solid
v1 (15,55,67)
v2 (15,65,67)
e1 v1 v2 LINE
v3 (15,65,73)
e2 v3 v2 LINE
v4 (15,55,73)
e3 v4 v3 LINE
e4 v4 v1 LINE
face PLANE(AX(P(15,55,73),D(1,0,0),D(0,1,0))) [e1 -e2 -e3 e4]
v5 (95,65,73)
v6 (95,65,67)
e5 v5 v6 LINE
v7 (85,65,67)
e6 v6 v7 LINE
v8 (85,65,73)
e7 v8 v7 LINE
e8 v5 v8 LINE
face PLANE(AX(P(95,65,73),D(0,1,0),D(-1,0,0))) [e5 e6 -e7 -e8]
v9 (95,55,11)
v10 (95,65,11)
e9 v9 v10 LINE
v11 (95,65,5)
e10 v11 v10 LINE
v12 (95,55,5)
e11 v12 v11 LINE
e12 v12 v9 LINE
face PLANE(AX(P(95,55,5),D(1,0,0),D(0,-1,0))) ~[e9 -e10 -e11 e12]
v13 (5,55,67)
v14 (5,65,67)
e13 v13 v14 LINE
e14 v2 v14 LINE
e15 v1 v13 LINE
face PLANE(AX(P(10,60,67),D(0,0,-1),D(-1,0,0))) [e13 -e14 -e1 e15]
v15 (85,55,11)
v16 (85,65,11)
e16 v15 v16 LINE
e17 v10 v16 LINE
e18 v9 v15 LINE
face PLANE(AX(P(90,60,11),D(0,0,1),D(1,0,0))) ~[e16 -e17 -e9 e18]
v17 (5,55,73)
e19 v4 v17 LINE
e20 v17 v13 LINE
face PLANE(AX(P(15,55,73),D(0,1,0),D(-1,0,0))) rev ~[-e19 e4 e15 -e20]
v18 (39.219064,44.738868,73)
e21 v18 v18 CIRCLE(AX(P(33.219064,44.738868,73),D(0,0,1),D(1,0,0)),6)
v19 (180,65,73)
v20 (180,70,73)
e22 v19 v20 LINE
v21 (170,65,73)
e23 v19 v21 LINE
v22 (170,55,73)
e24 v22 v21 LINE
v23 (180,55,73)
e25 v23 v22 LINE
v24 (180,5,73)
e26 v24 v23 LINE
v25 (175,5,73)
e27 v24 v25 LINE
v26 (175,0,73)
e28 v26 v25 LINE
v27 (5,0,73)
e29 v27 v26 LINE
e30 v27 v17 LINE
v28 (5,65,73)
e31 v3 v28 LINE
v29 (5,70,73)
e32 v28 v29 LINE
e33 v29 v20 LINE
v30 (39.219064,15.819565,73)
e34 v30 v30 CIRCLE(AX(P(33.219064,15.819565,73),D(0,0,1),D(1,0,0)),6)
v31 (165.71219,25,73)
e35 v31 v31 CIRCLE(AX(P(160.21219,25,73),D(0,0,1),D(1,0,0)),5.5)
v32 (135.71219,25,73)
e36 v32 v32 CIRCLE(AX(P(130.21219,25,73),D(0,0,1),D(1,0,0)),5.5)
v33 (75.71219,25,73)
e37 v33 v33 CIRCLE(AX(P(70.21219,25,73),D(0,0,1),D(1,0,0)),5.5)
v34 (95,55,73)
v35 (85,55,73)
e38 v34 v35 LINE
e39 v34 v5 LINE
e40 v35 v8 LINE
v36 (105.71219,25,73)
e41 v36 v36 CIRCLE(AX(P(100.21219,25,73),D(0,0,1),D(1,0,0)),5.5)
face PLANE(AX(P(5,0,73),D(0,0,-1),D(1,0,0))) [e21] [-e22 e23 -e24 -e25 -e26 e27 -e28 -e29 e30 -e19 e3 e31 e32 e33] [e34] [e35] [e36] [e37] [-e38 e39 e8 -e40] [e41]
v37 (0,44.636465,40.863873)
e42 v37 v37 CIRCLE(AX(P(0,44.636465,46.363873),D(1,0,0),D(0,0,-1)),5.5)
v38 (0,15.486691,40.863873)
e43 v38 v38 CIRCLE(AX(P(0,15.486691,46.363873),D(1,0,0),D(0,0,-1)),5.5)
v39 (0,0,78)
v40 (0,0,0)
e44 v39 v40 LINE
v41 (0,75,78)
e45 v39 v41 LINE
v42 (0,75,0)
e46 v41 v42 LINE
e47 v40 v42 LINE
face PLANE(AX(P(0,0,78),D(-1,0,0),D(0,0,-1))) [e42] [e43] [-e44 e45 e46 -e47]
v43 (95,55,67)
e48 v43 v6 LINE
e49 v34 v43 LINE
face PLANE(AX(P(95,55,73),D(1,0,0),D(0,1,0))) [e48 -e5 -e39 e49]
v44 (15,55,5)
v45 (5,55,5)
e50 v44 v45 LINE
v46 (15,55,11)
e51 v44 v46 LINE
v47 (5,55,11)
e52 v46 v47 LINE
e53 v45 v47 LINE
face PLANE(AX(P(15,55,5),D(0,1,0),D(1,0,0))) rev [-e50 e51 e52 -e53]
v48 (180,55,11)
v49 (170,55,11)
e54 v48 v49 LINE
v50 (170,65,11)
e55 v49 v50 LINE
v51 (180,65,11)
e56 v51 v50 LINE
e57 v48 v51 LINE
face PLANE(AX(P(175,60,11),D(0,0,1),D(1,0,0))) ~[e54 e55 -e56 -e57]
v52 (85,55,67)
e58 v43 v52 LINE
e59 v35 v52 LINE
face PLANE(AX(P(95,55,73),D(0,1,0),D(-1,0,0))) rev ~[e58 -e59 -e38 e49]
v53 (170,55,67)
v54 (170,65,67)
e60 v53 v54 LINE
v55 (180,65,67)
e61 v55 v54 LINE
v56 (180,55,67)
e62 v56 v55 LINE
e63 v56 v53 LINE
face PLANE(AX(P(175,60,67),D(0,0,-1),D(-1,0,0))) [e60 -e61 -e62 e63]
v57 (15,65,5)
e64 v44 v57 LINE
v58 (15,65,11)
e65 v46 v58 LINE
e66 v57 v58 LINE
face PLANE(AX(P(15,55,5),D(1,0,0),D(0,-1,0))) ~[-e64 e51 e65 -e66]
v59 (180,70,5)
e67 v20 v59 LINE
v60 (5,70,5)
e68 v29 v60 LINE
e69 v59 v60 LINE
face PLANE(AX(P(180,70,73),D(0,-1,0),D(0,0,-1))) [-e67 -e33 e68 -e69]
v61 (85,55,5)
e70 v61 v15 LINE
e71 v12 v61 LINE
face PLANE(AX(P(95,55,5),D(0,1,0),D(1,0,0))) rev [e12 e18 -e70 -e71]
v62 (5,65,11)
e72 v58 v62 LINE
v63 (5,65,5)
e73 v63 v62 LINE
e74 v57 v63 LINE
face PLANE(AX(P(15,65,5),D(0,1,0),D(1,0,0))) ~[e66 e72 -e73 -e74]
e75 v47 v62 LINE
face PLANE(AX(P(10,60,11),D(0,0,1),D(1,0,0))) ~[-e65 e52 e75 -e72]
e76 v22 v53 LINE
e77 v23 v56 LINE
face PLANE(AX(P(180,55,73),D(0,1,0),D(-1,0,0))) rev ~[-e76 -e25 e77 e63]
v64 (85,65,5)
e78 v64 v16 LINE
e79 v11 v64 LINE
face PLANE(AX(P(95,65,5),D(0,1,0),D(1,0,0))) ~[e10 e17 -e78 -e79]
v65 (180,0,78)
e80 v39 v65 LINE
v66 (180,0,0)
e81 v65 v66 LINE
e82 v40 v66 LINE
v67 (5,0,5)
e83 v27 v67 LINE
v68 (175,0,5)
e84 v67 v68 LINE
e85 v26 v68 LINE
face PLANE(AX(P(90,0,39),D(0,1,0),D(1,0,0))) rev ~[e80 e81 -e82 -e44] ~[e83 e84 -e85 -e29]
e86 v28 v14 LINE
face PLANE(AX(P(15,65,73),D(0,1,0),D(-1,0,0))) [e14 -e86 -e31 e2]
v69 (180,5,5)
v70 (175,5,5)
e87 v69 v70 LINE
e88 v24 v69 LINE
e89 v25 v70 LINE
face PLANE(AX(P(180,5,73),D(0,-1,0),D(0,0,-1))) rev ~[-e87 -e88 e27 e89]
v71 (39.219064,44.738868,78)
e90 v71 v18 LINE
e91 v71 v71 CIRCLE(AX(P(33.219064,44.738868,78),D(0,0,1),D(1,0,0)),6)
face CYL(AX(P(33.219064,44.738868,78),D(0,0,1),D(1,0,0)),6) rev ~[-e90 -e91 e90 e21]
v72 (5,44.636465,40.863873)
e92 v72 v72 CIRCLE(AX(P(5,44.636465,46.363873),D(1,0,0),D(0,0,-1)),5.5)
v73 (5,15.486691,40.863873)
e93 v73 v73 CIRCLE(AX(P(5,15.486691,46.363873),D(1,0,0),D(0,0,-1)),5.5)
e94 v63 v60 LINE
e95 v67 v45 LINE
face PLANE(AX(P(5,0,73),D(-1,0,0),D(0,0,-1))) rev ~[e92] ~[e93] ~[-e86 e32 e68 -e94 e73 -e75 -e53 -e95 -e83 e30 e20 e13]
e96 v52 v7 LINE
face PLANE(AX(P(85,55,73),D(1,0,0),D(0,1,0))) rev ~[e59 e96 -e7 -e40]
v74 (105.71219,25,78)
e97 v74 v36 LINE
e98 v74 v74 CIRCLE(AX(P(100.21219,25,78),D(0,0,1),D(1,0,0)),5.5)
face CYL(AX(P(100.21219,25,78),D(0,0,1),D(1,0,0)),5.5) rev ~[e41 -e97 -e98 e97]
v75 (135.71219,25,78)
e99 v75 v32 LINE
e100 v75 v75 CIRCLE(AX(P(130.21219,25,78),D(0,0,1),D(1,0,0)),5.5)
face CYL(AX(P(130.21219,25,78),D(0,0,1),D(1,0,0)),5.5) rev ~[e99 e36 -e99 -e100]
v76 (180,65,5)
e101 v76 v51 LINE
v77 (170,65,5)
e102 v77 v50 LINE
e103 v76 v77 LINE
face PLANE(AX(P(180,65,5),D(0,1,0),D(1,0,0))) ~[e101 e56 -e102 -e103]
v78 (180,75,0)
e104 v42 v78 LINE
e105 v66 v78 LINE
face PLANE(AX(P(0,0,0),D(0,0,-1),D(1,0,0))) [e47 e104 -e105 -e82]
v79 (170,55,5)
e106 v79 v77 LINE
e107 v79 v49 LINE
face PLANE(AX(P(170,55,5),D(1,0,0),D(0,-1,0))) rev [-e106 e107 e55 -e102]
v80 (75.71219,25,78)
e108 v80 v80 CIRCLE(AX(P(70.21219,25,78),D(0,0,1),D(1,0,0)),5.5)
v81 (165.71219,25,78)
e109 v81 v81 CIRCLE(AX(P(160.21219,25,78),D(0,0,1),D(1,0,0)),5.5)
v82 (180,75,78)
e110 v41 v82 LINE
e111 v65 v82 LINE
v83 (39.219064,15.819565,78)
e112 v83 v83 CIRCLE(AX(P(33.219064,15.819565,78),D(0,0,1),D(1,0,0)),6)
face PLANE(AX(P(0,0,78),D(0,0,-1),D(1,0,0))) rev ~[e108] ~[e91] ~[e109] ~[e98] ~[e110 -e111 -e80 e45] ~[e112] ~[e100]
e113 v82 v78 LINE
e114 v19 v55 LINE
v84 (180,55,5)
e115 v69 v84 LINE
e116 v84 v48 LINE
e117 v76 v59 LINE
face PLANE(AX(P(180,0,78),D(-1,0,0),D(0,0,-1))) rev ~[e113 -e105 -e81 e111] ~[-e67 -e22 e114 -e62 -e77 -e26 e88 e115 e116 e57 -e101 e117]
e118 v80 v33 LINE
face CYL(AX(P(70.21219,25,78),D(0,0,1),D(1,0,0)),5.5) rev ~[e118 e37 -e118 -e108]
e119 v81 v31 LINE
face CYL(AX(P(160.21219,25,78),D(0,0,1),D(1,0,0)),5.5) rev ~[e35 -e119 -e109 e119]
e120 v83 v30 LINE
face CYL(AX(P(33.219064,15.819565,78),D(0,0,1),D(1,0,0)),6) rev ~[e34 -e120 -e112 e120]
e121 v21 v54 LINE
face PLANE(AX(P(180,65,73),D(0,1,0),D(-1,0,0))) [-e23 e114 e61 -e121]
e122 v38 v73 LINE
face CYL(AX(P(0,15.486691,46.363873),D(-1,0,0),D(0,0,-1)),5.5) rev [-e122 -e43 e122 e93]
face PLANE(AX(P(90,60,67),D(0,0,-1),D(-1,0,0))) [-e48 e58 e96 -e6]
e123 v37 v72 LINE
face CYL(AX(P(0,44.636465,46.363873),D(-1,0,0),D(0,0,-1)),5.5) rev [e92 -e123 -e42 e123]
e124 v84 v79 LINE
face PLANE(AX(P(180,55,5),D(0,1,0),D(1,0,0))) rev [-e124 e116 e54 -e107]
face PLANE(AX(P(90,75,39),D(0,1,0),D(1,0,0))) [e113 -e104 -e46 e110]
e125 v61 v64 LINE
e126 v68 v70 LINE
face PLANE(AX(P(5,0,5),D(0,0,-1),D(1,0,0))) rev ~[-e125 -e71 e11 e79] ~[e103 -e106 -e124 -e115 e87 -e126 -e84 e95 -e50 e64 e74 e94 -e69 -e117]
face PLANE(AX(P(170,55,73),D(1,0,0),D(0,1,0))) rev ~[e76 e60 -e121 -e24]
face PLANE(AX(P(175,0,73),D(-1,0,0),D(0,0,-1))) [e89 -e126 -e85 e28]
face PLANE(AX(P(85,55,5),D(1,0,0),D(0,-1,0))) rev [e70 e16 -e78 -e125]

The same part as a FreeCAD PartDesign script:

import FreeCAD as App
import Part
import Sketcher

doc = App.newDocument("Part")
body = doc.addObject("PartDesign::Body", "Body")

# Sketch on XZ plane
sketch1 = body.newObject("Sketcher::SketchObject", "Sketch")
sketch1.AttachmentSupport = (doc.getObject("XZ_Plane"), [""])
sketch1.MapMode = "FlatFace"
sketch1.addGeometry(Part.LineSegment(App.Vector(0, 0, 0), App.Vector(0, 78, 0)), False)
sketch1.addGeometry(Part.LineSegment(App.Vector(0, 78, 0), App.Vector(180, 78, 0)), False)
sketch1.addGeometry(Part.LineSegment(App.Vector(180, 78, 0), App.Vector(180, 0, 0)), False)
sketch1.addGeometry(Part.LineSegment(App.Vector(180, 0, 0), App.Vector(0, 0, 0)), False)
sketch1.addConstraint(Sketcher.Constraint("Coincident", 0, 2, 1, 1))
sketch1.addConstraint(Sketcher.Constraint("Coincident", 1, 2, 2, 1))
sketch1.addConstraint(Sketcher.Constraint("Coincident", 2, 2, 3, 1))
sketch1.addConstraint(Sketcher.Constraint("Coincident", 3, 2, 0, 1))
sketch1.addConstraint(Sketcher.Constraint("Vertical", 0))
sketch1.addConstraint(Sketcher.Constraint("Horizontal", 1))
sketch1.addConstraint(Sketcher.Constraint("Vertical", 2))
sketch1.addConstraint(Sketcher.Constraint("Horizontal", 3))
sketch1.addConstraint(Sketcher.Constraint("Coincident", 3, 2, -1, 1))
sketch1.addConstraint(Sketcher.Constraint("DistanceX", 1, 1, 1, 2, 180.0))
sketch1.addConstraint(Sketcher.Constraint("DistanceY", 0, 1, 0, 2, 78.0))
pad1 = body.newObject("PartDesign::Pad", "Pad")
pad1.Profile = sketch1
pad1.Length = 75
pad1.Reversed = True

# Sketch on XZ plane
sketch2 = body.newObject("Sketcher::SketchObject", "Sketch001")
sketch2.AttachmentSupport = (doc.getObject("XZ_Plane"), [""])
sketch2.MapMode = "FlatFace"
sketch2.addGeometry(Part.LineSegment(App.Vector(5, 5, 0), App.Vector(5, 73, 0)), False)
sketch2.addGeometry(Part.LineSegment(App.Vector(5, 73, 0), App.Vector(175, 73, 0)), False)
sketch2.addGeometry(Part.LineSegment(App.Vector(175, 73, 0), App.Vector(175, 5, 0)), False)
sketch2.addGeometry(Part.LineSegment(App.Vector(175, 5, 0), App.Vector(5, 5, 0)), False)
sketch2.addConstraint(Sketcher.Constraint("Coincident", 0, 2, 1, 1))
sketch2.addConstraint(Sketcher.Constraint("Coincident", 1, 2, 2, 1))
sketch2.addConstraint(Sketcher.Constraint("Coincident", 2, 2, 3, 1))
sketch2.addConstraint(Sketcher.Constraint("Coincident", 3, 2, 0, 1))
sketch2.addConstraint(Sketcher.Constraint("Vertical", 0))
sketch2.addConstraint(Sketcher.Constraint("Horizontal", 1))
sketch2.addConstraint(Sketcher.Constraint("Vertical", 2))
sketch2.addConstraint(Sketcher.Constraint("Horizontal", 3))
sketch2.addConstraint(Sketcher.Constraint("DistanceX", 1, 1, 1, 2, 170.0))
sketch2.addConstraint(Sketcher.Constraint("DistanceY", 0, 1, 0, 2, 68.0))
sketch2.addConstraint(Sketcher.Constraint("DistanceX", -1, 1, 0, 2, 5.0))
sketch2.addConstraint(Sketcher.Constraint("DistanceY", -1, 1, 0, 2, 73.0))
pocket1 = body.newObject("PartDesign::Pocket", "Pocket")
pocket1.Profile = sketch2
pocket1.Length = 70

# Sketch on YZ plane
sketch3 = body.newObject("Sketcher::SketchObject", "Sketch002")
sketch3.AttachmentSupport = (doc.getObject("YZ_Plane"), [""])
sketch3.MapMode = "FlatFace"
sketch3.AttachmentOffset = App.Placement(App.Vector(0, 0, 180), App.Rotation())
sketch3.addGeometry(Part.LineSegment(App.Vector(70, 73, 0), App.Vector(5, 73, 0)), False)
sketch3.addGeometry(Part.LineSegment(App.Vector(5, 73, 0), App.Vector(5, 5, 0)), False)
sketch3.addGeometry(Part.LineSegment(App.Vector(5, 5, 0), App.Vector(70, 5, 0)), False)
sketch3.addGeometry(Part.LineSegment(App.Vector(70, 5, 0), App.Vector(70, 73, 0)), False)
sketch3.addConstraint(Sketcher.Constraint("Coincident", 0, 2, 1, 1))
sketch3.addConstraint(Sketcher.Constraint("Coincident", 1, 2, 2, 1))
sketch3.addConstraint(Sketcher.Constraint("Coincident", 2, 2, 3, 1))
sketch3.addConstraint(Sketcher.Constraint("Coincident", 3, 2, 0, 1))
sketch3.addConstraint(Sketcher.Constraint("Horizontal", 0))
sketch3.addConstraint(Sketcher.Constraint("Vertical", 1))
sketch3.addConstraint(Sketcher.Constraint("Horizontal", 2))
sketch3.addConstraint(Sketcher.Constraint("Vertical", 3))
sketch3.addConstraint(Sketcher.Constraint("DistanceX", 0, 2, 0, 1, 65.0))
sketch3.addConstraint(Sketcher.Constraint("DistanceY", 1, 2, 1, 1, 68.0))
sketch3.addConstraint(Sketcher.Constraint("DistanceX", -1, 1, 0, 2, 5.0))
sketch3.addConstraint(Sketcher.Constraint("DistanceY", -1, 1, 0, 2, 73.0))
pocket2 = body.newObject("PartDesign::Pocket", "Pocket001")
pocket2.Profile = sketch3
pocket2.Length = 5

# Sketch on XY plane
sketch4 = body.newObject("Sketcher::SketchObject", "Sketch003")
sketch4.AttachmentSupport = (doc.getObject("XY_Plane"), [""])
sketch4.MapMode = "FlatFace"
sketch4.AttachmentOffset = App.Placement(App.Vector(0, 0, 78), App.Rotation())
sketch4.addGeometry(Part.Circle(App.Vector(160.21219, 25, 0), App.Vector(0, 0, 1), 5.5), False)
sketch4.addGeometry(Part.Circle(App.Vector(100.21219, 25, 0), App.Vector(0, 0, 1), 5.5), False)
sketch4.addGeometry(Part.Circle(App.Vector(130.21219, 25, 0), App.Vector(0, 0, 1), 5.5), False)
sketch4.addGeometry(Part.Circle(App.Vector(70.21219, 25, 0), App.Vector(0, 0, 1), 5.5), False)
sketch4.addGeometry(Part.Circle(App.Vector(33.219064, 44.738868, 0), App.Vector(0, 0, 1), 6), False)
sketch4.addGeometry(Part.Circle(App.Vector(33.219064, 15.819565, 0), App.Vector(0, 0, 1), 6), False)
sketch4.addConstraint(Sketcher.Constraint("Equal", 0, 1))
sketch4.addConstraint(Sketcher.Constraint("Equal", 1, 2))
sketch4.addConstraint(Sketcher.Constraint("Equal", 2, 3))
sketch4.addConstraint(Sketcher.Constraint("Equal", 4, 5))
sketch4.addConstraint(Sketcher.Constraint("Horizontal", 0, 3, 1, 3))
sketch4.addConstraint(Sketcher.Constraint("Horizontal", 1, 3, 2, 3))
sketch4.addConstraint(Sketcher.Constraint("Horizontal", 2, 3, 3, 3))
sketch4.addConstraint(Sketcher.Constraint("Vertical", 4, 3, 5, 3))
sketch4.addConstraint(Sketcher.Constraint("Diameter", 0, 11.0))
sketch4.addConstraint(Sketcher.Constraint("Diameter", 4, 12.0))
sketch4.addConstraint(Sketcher.Constraint("DistanceY", -1, 1, 0, 3, 25.0))
sketch4.addConstraint(Sketcher.Constraint("DistanceX", 1, 3, 0, 3, 60.0))
sketch4.addConstraint(Sketcher.Constraint("DistanceX", 1, 3, 2, 3, 30.0))
sketch4.addConstraint(Sketcher.Constraint("DistanceX", 3, 3, 1, 3, 30.0))
sketch4.addConstraint(Sketcher.Constraint("DistanceX", -1, 1, 0, 3, 160.21219))
sketch4.addConstraint(Sketcher.Constraint("DistanceY", -1, 1, 4, 3, 44.738868))
sketch4.addConstraint(Sketcher.Constraint("DistanceX", -1, 1, 4, 3, 33.219064))
sketch4.addConstraint(Sketcher.Constraint("DistanceY", -1, 1, 5, 3, 15.819565))
pocket3 = body.newObject("PartDesign::Pocket", "Pocket002")
pocket3.Profile = sketch4
pocket3.Length = 5

# Sketch on YZ plane
sketch5 = body.newObject("Sketcher::SketchObject", "Sketch004")
sketch5.AttachmentSupport = (doc.getObject("YZ_Plane"), [""])
sketch5.MapMode = "FlatFace"
sketch5.addGeometry(Part.Circle(App.Vector(44.636465, 46.363873, 0), App.Vector(0, 0, 1), 5.5), False)
sketch5.addGeometry(Part.Circle(App.Vector(15.486691, 46.363873, 0), App.Vector(0, 0, 1), 5.5), False)
sketch5.addConstraint(Sketcher.Constraint("Equal", 0, 1))
sketch5.addConstraint(Sketcher.Constraint("Horizontal", 0, 3, 1, 3))
sketch5.addConstraint(Sketcher.Constraint("Diameter", 0, 11.0))
sketch5.addConstraint(Sketcher.Constraint("DistanceX", -1, 1, 1, 3, 15.486691))
sketch5.addConstraint(Sketcher.Constraint("DistanceX", -1, 1, 0, 3, 44.636465))
sketch5.addConstraint(Sketcher.Constraint("DistanceY", -1, 1, 0, 3, 46.363873))
pocket4 = body.newObject("PartDesign::Pocket", "Pocket003")
pocket4.Profile = sketch5
pocket4.Length = 5
pocket4.Reversed = True

# Sketch on XY plane
sketch6 = body.newObject("Sketcher::SketchObject", "Sketch005")
sketch6.AttachmentSupport = (doc.getObject("XY_Plane"), [""])
sketch6.MapMode = "FlatFace"
sketch6.AttachmentOffset = App.Placement(App.Vector(0, 0, 73), App.Rotation())
sketch6.addGeometry(Part.LineSegment(App.Vector(180, 65, 0), App.Vector(180, 55, 0)), False)
sketch6.addGeometry(Part.LineSegment(App.Vector(180, 55, 0), App.Vector(170, 55, 0)), False)
sketch6.addGeometry(Part.LineSegment(App.Vector(170, 55, 0), App.Vector(170, 65, 0)), False)
sketch6.addGeometry(Part.LineSegment(App.Vector(170, 65, 0), App.Vector(180, 65, 0)), False)
sketch6.addGeometry(Part.LineSegment(App.Vector(95, 65, 0), App.Vector(95, 55, 0)), False)
sketch6.addGeometry(Part.LineSegment(App.Vector(95, 55, 0), App.Vector(85, 55, 0)), False)
sketch6.addGeometry(Part.LineSegment(App.Vector(85, 55, 0), App.Vector(85, 65, 0)), False)
sketch6.addGeometry(Part.LineSegment(App.Vector(85, 65, 0), App.Vector(95, 65, 0)), False)
sketch6.addGeometry(Part.LineSegment(App.Vector(15, 65, 0), App.Vector(15, 55, 0)), False)
sketch6.addGeometry(Part.LineSegment(App.Vector(15, 55, 0), App.Vector(5, 55, 0)), False)
sketch6.addGeometry(Part.LineSegment(App.Vector(5, 55, 0), App.Vector(5, 65, 0)), False)
sketch6.addGeometry(Part.LineSegment(App.Vector(5, 65, 0), App.Vector(15, 65, 0)), False)
sketch6.addConstraint(Sketcher.Constraint("Coincident", 0, 2, 1, 1))
sketch6.addConstraint(Sketcher.Constraint("Coincident", 1, 2, 2, 1))
sketch6.addConstraint(Sketcher.Constraint("Coincident", 2, 2, 3, 1))
sketch6.addConstraint(Sketcher.Constraint("Coincident", 3, 2, 0, 1))
sketch6.addConstraint(Sketcher.Constraint("Coincident", 4, 2, 5, 1))
sketch6.addConstraint(Sketcher.Constraint("Coincident", 5, 2, 6, 1))
sketch6.addConstraint(Sketcher.Constraint("Coincident", 6, 2, 7, 1))
sketch6.addConstraint(Sketcher.Constraint("Coincident", 7, 2, 4, 1))
sketch6.addConstraint(Sketcher.Constraint("Coincident", 8, 2, 9, 1))
sketch6.addConstraint(Sketcher.Constraint("Coincident", 9, 2, 10, 1))
sketch6.addConstraint(Sketcher.Constraint("Coincident", 10, 2, 11, 1))
sketch6.addConstraint(Sketcher.Constraint("Coincident", 11, 2, 8, 1))
sketch6.addConstraint(Sketcher.Constraint("Vertical", 0))
sketch6.addConstraint(Sketcher.Constraint("Horizontal", 1))
sketch6.addConstraint(Sketcher.Constraint("Vertical", 2))
sketch6.addConstraint(Sketcher.Constraint("Horizontal", 3))
sketch6.addConstraint(Sketcher.Constraint("Vertical", 4))
sketch6.addConstraint(Sketcher.Constraint("Horizontal", 5))
sketch6.addConstraint(Sketcher.Constraint("Vertical", 6))
sketch6.addConstraint(Sketcher.Constraint("Horizontal", 7))
sketch6.addConstraint(Sketcher.Constraint("Vertical", 8))
sketch6.addConstraint(Sketcher.Constraint("Horizontal", 9))
sketch6.addConstraint(Sketcher.Constraint("Vertical", 10))
sketch6.addConstraint(Sketcher.Constraint("Horizontal", 11))
sketch6.addConstraint(Sketcher.Constraint("Horizontal", 1, 2, 4, 2))
sketch6.addConstraint(Sketcher.Constraint("Horizontal", 3, 2, 6, 2))
sketch6.addConstraint(Sketcher.Constraint("Horizontal", 5, 2, 8, 2))
sketch6.addConstraint(Sketcher.Constraint("Horizontal", 7, 2, 10, 2))
sketch6.addConstraint(Sketcher.Constraint("Equal", 3, 5))
sketch6.addConstraint(Sketcher.Constraint("Equal", 7, 9))
sketch6.addConstraint(Sketcher.Constraint("Equal", 11, 0))
sketch6.addConstraint(Sketcher.Constraint("DistanceX", 1, 2, 1, 1, 10.0))
sketch6.addConstraint(Sketcher.Constraint("DistanceX", -1, 1, 0, 2, 180.0))
sketch6.addConstraint(Sketcher.Constraint("DistanceY", -1, 1, 0, 2, 55.0))
sketch6.addConstraint(Sketcher.Constraint("DistanceX", -1, 1, 4, 2, 95.0))
sketch6.addConstraint(Sketcher.Constraint("DistanceX", -1, 1, 8, 2, 15.0))
pad2 = body.newObject("PartDesign::Pad", "Pad001")
pad2.Profile = sketch6
pad2.Length = 6
pad2.Reversed = True
doc.recompute()

datumplane = body.newObject("PartDesign::Plane", "DatumPlane")
datumplane.AttachmentSupport = (doc.getObject("XY_Plane"), [""])
datumplane.MapMode = "FlatFace"
datumplane.AttachmentOffset = App.Placement(App.Vector(0, 0, 39), App.Rotation())
mirrored = body.newObject("PartDesign::Mirrored", "Mirrored")
mirrored.Originals = [pad2]
mirrored.MirrorPlane = (datumplane, [""])
body.Tip = mirrored

doc.recompute()
